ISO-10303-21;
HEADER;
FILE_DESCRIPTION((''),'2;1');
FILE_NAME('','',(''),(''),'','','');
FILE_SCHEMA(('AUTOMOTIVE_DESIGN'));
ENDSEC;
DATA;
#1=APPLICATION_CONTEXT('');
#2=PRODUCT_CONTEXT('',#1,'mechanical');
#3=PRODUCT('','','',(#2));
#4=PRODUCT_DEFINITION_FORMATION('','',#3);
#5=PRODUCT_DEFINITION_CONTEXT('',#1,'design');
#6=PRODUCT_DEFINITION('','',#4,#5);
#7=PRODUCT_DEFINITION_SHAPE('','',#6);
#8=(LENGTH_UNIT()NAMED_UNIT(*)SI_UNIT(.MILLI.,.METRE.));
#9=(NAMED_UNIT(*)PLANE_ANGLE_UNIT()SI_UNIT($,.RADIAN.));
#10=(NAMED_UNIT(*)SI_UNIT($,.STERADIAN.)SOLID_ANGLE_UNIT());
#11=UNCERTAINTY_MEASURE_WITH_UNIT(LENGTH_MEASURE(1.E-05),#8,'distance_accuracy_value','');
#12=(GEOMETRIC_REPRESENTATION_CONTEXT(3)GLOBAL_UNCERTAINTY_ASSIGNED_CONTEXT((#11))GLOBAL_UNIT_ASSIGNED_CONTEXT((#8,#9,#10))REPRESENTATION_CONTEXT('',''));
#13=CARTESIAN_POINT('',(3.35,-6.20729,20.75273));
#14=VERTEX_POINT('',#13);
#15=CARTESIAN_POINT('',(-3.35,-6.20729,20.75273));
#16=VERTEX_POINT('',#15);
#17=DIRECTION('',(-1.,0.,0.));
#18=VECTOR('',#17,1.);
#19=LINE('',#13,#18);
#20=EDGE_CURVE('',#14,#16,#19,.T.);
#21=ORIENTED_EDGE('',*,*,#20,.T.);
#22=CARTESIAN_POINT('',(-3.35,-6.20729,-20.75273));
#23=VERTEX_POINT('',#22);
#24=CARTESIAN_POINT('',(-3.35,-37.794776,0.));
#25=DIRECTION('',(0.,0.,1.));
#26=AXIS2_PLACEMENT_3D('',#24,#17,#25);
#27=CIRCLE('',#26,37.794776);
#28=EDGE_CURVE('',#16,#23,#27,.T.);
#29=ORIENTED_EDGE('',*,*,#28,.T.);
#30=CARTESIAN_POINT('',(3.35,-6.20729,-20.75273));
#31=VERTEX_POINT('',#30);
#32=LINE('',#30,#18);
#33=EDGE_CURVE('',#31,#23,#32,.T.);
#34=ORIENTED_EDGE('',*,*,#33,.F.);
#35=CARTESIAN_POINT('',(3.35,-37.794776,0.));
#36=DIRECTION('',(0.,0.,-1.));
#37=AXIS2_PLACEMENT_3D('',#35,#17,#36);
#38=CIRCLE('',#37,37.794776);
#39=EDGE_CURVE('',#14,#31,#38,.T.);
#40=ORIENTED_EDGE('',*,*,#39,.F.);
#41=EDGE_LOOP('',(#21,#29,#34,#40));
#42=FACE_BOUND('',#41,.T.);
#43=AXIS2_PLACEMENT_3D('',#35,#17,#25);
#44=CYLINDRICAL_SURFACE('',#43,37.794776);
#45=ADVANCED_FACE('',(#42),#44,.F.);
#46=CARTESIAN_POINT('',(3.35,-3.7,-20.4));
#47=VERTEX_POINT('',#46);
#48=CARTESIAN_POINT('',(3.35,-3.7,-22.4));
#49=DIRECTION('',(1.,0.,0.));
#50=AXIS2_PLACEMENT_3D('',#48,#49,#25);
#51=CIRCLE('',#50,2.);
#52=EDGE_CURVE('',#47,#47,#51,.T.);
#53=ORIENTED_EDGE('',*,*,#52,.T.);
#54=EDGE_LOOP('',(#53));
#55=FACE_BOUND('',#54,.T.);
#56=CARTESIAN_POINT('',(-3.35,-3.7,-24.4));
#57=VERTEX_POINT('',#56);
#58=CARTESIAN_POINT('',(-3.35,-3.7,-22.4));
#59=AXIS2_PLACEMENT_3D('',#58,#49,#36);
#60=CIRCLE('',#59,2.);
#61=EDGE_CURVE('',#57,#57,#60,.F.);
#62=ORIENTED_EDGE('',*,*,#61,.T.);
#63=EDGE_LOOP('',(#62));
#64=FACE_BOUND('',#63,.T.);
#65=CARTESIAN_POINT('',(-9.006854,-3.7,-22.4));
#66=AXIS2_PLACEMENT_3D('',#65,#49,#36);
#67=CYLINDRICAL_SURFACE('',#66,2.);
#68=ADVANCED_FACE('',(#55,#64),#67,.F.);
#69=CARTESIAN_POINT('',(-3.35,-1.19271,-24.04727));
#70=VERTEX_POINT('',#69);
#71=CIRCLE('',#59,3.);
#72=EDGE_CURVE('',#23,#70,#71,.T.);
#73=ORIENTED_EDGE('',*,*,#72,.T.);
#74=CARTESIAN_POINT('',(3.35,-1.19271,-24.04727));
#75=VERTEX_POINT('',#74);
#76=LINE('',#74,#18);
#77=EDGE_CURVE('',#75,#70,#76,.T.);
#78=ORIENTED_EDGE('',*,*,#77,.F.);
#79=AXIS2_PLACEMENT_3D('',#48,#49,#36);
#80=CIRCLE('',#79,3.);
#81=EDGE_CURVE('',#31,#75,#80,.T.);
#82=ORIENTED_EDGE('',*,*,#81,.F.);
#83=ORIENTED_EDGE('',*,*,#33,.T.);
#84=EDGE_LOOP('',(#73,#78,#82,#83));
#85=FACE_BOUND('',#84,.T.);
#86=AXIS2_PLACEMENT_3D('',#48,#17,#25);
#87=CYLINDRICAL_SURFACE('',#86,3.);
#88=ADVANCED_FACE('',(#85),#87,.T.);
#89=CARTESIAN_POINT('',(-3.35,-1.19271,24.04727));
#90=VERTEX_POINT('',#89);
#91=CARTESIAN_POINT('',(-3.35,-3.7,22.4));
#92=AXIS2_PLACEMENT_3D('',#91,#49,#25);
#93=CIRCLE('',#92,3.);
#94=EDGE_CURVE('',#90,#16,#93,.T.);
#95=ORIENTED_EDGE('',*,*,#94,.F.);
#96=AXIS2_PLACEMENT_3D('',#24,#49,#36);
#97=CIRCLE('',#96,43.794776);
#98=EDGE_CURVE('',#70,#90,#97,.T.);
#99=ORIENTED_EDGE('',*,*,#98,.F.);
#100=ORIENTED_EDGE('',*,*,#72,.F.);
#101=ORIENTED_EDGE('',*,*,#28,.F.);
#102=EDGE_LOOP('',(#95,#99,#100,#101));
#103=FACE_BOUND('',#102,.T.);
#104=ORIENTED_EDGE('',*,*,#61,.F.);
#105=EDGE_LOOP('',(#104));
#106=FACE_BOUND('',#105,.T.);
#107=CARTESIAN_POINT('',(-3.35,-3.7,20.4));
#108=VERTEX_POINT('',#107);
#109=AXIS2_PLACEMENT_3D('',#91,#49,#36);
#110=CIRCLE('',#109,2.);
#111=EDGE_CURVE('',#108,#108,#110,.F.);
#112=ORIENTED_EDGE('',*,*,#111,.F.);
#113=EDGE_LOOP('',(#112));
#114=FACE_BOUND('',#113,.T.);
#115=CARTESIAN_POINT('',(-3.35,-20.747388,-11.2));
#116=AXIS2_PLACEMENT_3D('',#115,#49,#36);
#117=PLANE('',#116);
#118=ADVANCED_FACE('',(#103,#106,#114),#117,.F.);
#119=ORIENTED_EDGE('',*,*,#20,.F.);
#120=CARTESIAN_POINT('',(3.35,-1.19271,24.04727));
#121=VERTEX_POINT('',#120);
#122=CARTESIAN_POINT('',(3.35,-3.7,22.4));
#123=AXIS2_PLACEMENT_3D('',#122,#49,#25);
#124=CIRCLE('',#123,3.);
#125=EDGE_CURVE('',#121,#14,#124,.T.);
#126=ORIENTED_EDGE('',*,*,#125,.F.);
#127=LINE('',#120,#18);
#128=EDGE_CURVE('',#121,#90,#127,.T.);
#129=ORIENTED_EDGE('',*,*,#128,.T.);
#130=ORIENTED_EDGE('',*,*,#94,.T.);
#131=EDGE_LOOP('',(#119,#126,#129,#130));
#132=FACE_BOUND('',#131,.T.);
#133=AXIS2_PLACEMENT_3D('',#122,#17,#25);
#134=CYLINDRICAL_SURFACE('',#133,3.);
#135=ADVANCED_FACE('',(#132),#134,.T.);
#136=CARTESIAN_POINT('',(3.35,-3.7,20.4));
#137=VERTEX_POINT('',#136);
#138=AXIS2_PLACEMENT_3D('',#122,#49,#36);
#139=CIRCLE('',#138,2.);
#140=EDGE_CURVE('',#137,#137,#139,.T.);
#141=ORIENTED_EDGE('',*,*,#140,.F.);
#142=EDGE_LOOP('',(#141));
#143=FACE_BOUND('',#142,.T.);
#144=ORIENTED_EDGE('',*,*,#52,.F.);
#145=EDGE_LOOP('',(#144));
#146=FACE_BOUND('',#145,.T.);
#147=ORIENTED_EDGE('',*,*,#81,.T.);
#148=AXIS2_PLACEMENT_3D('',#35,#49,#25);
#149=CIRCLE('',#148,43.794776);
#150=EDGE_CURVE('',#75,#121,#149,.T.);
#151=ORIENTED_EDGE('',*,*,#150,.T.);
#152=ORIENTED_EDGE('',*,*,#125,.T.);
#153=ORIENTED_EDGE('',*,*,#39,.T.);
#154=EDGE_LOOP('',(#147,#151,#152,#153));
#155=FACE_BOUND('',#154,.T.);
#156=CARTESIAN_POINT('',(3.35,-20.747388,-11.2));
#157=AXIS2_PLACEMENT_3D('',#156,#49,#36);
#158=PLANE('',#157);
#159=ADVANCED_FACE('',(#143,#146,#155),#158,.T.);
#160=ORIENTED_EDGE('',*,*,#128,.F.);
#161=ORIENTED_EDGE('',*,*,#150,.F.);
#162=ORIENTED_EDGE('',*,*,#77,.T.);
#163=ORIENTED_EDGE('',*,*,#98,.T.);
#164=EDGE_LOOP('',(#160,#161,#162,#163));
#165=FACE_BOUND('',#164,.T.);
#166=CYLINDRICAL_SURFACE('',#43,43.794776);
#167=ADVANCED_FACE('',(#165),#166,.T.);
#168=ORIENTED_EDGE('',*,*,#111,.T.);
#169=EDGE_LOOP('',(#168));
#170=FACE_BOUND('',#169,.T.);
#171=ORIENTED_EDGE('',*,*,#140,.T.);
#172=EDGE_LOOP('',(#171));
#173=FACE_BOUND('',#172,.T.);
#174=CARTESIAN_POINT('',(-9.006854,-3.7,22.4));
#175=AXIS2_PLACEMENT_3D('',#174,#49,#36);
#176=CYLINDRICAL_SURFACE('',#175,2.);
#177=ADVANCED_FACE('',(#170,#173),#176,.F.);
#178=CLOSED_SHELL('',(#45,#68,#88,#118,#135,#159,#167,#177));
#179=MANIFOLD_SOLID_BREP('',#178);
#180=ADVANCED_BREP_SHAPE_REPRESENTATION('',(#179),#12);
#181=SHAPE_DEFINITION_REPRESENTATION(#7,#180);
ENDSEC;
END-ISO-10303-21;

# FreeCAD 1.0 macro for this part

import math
import FreeCAD as App
import Part
import Sketcher
from FreeCAD import Vector

doc = App.newDocument("Part")
params = doc.addObject("Spreadsheet::Sheet", "Params")
for row, (alias, value) in enumerate([
    ("sketch1_radius", "3 mm"),
    ("pad1_length", "6.7 mm"),
    ("sketch2_diameter", "4 mm"),
    ("pocket1_length", "6.7 mm"),
], start=1):
    params.set(f"A{row}", alias)
    params.set(f"B{row}", "=" + value)
    params.setAlias(f"B{row}", alias)

body = doc.addObject("PartDesign::Body", "Body")

sketch1 = body.newObject("Sketcher::SketchObject", "Sketch")
sketch1.AttachmentSupport = (doc.getObject("YZ_Plane"), [""])
sketch1.MapMode = "FlatFace"
sketch1.addGeometry(Part.ArcOfCircle(Part.Circle(Vector(-37.8, 0, 0), Vector(0, 0, 1), 37.8), math.radians(-33), math.radians(0)), False)
sketch1.addGeometry(Part.ArcOfCircle(Part.Circle(Vector(-3.7, -22.4, 0), Vector(0, 0, 1), 3), math.radians(147), math.radians(327)), False)
sketch1.addGeometry(Part.ArcOfCircle(Part.Circle(Vector(-37.8, 0, 0), Vector(0, 0, 1), 43.8), math.radians(-33), math.radians(0)), False)
sketch1.addGeometry(Part.ArcOfCircle(Part.Circle(Vector(-37.8, 0, 0), Vector(0, 0, 1), 43.8), math.radians(0), math.radians(33)), False)
sketch1.addGeometry(Part.ArcOfCircle(Part.Circle(Vector(-3.7, 22.4, 0), Vector(0, 0, 1), 3), math.radians(33), math.radians(213)), False)
sketch1.addGeometry(Part.ArcOfCircle(Part.Circle(Vector(-37.8, 0, 0), Vector(0, 0, 1), 37.8), math.radians(0), math.radians(33)), False)
sketch1.addConstraint(Sketcher.Constraint("Tangent", 0, 1, 1, 1))
sketch1.addConstraint(Sketcher.Constraint("Tangent", 1, 2, 2, 1))
sketch1.addConstraint(Sketcher.Constraint("Tangent", 2, 2, 3, 1))
sketch1.addConstraint(Sketcher.Constraint("Tangent", 3, 2, 4, 1))
sketch1.addConstraint(Sketcher.Constraint("Tangent", 4, 2, 5, 2))
sketch1.addConstraint(Sketcher.Constraint("Tangent", 5, 1, 0, 2))
sketch1.addConstraint(Sketcher.Constraint("Coincident", 5, 1, -1, 1))
sketch1.addConstraint(Sketcher.Constraint("Coincident", 2, 3, 0, 3))
sketch1.addConstraint(Sketcher.Constraint("Equal", 2, 3))
sketch1.addConstraint(Sketcher.Constraint("Equal", 1, 4))
sketch1.addConstraint(Sketcher.Constraint("Symmetric", 1, 3, 4, 3, -1))
sketch1.addConstraint(Sketcher.Constraint("PointOnObject", 2, 2, -1))
sketch1.addConstraint(Sketcher.Constraint("Radius", 1, 3.0))
sketch1.addConstraint(Sketcher.Constraint("DistanceX", 1, 3, -1, 1, 3.7))
sketch1.addConstraint(Sketcher.Constraint("DistanceY", 1, 3, -1, 1, 22.4))
sketch1.setExpression("Constraints[12]", "Params.sketch1_radius")
pad1 = body.newObject("PartDesign::Pad", "Pad")
pad1.Profile = sketch1
pad1.setExpression("Length", "Params.pad1_length")
pad1.Midplane = True

sketch2 = body.newObject("Sketcher::SketchObject", "Sketch001")
sketch2.AttachmentSupport = (doc.getObject("YZ_Plane"), [""])
sketch2.MapMode = "FlatFace"
sketch2.AttachmentOffset = App.Placement(Vector(0, 0, 3.35), App.Rotation())
sketch2.addGeometry(Part.Circle(Vector(-3.7, 22.4, 0), Vector(0, 0, 1), 2), False)
sketch2.addGeometry(Part.Circle(Vector(-3.7, -22.4, 0), Vector(0, 0, 1), 2), False)
sketch2.addConstraint(Sketcher.Constraint("Equal", 0, 1))
sketch2.addConstraint(Sketcher.Constraint("Symmetric", 0, 3, 1, 3, -1))
sketch2.addConstraint(Sketcher.Constraint("Diameter", 0, 4.0))
sketch2.addConstraint(Sketcher.Constraint("DistanceX", 0, 3, -1, 1, 3.7))
sketch2.addConstraint(Sketcher.Constraint("DistanceY", -1, 1, 0, 3, 22.4))
sketch2.setExpression("Constraints[2]", "Params.sketch2_diameter")
pocket1 = body.newObject("PartDesign::Pocket", "Pocket")
pocket1.Profile = sketch2
pocket1.setExpression("Length", "Params.pocket1_length")

doc.recompute()
